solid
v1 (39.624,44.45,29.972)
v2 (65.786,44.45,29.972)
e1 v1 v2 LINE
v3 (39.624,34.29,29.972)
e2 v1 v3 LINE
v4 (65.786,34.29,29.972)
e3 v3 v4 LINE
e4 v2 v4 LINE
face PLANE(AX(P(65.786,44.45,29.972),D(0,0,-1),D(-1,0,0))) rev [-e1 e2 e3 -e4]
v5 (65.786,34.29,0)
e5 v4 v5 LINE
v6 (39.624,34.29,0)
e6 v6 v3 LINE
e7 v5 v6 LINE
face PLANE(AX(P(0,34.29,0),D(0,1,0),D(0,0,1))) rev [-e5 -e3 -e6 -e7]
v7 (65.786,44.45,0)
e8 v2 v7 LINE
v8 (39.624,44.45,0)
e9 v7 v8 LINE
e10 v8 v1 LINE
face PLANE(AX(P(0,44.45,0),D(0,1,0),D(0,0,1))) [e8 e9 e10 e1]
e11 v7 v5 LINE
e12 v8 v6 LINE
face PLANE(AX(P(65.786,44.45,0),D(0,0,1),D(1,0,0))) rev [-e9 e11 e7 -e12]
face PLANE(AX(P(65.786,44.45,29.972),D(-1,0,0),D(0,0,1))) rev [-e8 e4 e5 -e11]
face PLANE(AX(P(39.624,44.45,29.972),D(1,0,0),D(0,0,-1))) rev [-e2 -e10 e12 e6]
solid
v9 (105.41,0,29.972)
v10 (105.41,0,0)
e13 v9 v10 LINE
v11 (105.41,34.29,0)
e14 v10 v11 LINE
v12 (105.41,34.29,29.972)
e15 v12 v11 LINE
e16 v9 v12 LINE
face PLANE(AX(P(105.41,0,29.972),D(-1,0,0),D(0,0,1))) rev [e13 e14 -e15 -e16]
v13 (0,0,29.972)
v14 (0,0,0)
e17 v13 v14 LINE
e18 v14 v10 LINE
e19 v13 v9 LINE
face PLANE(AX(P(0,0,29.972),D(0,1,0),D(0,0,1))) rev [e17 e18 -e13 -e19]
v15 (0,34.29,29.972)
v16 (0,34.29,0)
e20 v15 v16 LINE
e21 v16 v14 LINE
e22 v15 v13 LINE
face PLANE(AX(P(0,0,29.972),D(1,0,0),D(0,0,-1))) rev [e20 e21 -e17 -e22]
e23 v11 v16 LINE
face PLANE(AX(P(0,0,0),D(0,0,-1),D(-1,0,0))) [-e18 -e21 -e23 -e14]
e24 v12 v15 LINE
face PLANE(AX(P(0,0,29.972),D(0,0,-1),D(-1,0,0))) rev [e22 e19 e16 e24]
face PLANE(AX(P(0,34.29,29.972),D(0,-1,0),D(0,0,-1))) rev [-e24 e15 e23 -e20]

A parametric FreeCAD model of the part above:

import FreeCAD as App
import Part
import Sketcher
Q = App.Units.Quantity


def add_polygon(sketch, points):
    """Adds a closed chain of lines whose ends are joined by coincident constraints."""
    first, n = sketch.GeometryCount, len(points)
    for a, b in zip(points, points[1:] + points[:1]):
        sketch.addGeometry(Part.LineSegment(App.Vector(*a, 0), App.Vector(*b, 0)), False)
    for i in range(n):
        sketch.addConstraint(Sketcher.Constraint("Coincident", first + i, 2, first + (i + 1) % n, 1))

doc = App.newDocument("Part")
body = doc.addObject("PartDesign::Body", "Body")

# Sketch on XY plane
sketch1 = body.newObject("Sketcher::SketchObject", "Sketch")
sketch1.AttachmentSupport = (doc.getObject("XY_Plane"), [""])
sketch1.MapMode = "FlatFace"
add_polygon(sketch1, [(0, 34), (0, 0), (105, 0), (105, 34)])  # lines 0-3
sketch1.addConstraint([
    Sketcher.Constraint("Vertical", 0),
    Sketcher.Constraint("Horizontal", 1),
    Sketcher.Constraint("Vertical", 2),
    Sketcher.Constraint("Horizontal", 3),
    Sketcher.Constraint("Coincident", 0, 2, -1, 1),
    Sketcher.Constraint("DistanceX", 1, 1, 1, 2, Q("4.15 in")),
    Sketcher.Constraint("DistanceY", 0, 2, 0, 1, Q("1.35 in")),
])
pad1 = body.newObject("PartDesign::Pad", "Pad")
pad1.Profile = sketch1
pad1.Length = Q("1.18 in")
body2 = doc.addObject("PartDesign::Body", "Body001")

# Sketch on XZ plane
sketch2 = body2.newObject("Sketcher::SketchObject", "Sketch001")
sketch2.AttachmentSupport = (doc.getObject("XZ_Plane001"), [""])
sketch2.MapMode = "FlatFace"
sketch2.AttachmentOffset = App.Placement(App.Vector(0, 0, -1.35 * 25.4), App.Rotation())
add_polygon(sketch2, [(40, 0), (40, 30), (66, 30), (66, 0)])  # lines 0-3
sketch2.addConstraint([
    Sketcher.Constraint("Vertical", 0),
    Sketcher.Constraint("Horizontal", 1),
    Sketcher.Constraint("Vertical", 2),
    Sketcher.Constraint("Horizontal", 3),
    Sketcher.Constraint("PointOnObject", 2, 2, -1),
    Sketcher.Constraint("DistanceX", 1, 1, 1, 2, Q("1.03 in")),
    Sketcher.Constraint("DistanceY", 0, 1, 0, 2, Q("1.18 in")),
    Sketcher.Constraint("DistanceX", -1, 1, 0, 2, Q("1.56 in")),
])
pad2 = body2.newObject("PartDesign::Pad", "Pad001")
pad2.Profile = sketch2
pad2.Length = Q("0.4 in")
pad2.Reversed = True

doc.recompute()
